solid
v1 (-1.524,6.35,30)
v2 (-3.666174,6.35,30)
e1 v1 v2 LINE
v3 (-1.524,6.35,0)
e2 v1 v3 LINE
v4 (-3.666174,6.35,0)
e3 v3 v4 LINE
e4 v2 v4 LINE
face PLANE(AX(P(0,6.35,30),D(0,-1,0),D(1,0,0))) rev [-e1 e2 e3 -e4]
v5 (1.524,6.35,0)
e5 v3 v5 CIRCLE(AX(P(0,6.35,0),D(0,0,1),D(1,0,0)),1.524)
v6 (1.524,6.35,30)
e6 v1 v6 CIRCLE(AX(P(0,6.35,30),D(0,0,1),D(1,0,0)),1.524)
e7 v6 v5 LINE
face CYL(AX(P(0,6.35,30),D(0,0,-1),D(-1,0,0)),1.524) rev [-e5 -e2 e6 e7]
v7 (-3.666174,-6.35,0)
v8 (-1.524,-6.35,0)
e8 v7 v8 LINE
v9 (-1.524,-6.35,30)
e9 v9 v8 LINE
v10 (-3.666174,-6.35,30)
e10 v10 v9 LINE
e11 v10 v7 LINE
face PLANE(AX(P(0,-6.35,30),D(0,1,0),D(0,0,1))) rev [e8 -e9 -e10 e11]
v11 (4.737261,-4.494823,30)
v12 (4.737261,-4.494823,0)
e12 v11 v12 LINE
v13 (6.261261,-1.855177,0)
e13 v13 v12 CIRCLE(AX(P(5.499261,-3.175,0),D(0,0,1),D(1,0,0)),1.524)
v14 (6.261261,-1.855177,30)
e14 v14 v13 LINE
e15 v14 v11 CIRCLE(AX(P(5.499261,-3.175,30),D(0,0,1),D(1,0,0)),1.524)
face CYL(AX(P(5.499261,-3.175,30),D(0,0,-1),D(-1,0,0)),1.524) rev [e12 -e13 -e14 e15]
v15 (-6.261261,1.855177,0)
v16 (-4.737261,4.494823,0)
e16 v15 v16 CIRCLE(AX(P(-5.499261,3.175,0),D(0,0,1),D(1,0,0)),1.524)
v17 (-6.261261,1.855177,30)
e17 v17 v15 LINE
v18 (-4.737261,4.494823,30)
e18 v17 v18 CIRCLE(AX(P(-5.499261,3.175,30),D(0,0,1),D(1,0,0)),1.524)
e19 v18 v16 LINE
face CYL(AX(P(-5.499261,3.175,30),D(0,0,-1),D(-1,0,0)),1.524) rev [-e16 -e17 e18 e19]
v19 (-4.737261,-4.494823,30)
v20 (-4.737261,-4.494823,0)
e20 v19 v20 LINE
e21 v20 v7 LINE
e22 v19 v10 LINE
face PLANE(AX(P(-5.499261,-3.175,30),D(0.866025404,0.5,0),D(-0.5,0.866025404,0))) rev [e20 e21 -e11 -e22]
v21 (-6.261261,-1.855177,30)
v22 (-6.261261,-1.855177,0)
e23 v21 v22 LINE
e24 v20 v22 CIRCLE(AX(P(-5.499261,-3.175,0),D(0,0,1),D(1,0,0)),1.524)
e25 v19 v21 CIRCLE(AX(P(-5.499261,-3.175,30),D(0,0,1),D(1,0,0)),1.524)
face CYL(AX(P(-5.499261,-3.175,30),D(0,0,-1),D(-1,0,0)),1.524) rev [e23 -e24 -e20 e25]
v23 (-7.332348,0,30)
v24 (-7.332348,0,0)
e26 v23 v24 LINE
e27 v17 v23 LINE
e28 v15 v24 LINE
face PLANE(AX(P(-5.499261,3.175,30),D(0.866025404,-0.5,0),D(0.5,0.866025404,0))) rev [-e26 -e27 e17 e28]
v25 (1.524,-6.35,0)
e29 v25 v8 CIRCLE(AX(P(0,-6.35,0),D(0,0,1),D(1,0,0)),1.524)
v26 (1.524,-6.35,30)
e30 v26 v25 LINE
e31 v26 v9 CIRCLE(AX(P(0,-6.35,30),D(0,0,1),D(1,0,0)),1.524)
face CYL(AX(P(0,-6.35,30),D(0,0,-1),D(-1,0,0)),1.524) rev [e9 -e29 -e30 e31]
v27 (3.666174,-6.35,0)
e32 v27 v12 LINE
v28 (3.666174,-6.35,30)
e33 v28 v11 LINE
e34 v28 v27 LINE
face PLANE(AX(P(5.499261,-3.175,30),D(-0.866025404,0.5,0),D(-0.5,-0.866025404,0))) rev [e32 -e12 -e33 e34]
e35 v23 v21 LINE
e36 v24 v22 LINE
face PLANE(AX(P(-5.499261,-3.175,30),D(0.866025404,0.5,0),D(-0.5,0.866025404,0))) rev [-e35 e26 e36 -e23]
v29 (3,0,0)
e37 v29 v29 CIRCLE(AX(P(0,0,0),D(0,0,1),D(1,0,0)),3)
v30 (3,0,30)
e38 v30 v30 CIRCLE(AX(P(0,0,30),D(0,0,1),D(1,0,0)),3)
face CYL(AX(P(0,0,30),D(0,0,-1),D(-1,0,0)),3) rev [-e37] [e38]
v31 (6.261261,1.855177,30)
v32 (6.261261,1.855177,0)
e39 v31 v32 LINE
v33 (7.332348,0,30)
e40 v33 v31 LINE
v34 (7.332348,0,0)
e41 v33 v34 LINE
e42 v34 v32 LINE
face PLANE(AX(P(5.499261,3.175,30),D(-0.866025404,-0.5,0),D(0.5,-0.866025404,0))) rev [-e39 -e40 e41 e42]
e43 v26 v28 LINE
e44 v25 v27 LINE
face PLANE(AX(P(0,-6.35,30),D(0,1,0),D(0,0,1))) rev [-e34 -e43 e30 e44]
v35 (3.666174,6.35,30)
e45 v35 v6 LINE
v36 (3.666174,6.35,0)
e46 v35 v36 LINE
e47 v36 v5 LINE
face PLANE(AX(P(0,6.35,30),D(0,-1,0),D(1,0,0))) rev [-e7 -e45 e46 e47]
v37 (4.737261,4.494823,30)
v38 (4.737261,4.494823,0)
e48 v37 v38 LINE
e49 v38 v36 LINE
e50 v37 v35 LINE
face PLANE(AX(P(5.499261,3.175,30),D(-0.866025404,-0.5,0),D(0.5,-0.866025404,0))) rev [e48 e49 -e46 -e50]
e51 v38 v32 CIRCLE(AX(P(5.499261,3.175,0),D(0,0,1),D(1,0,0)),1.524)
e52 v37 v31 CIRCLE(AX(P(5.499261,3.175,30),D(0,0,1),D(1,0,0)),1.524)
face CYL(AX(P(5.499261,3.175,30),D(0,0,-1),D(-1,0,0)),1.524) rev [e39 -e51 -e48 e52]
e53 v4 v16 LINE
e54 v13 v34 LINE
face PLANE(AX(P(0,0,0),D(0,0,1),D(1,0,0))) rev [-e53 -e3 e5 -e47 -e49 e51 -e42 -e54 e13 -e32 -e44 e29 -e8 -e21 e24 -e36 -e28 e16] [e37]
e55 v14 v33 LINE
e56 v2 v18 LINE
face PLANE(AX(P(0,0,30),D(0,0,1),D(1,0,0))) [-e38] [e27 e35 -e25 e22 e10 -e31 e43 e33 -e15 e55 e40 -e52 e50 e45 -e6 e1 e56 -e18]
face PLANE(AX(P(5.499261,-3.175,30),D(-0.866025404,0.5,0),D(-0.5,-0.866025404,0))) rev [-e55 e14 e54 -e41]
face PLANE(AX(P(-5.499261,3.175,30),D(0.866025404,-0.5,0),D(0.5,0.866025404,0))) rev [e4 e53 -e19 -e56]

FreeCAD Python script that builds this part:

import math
import FreeCAD as App
import Part
import Sketcher
Q = App.Units.Quantity

doc = App.newDocument("Part")
body = doc.addObject("PartDesign::Body", "Body")

# Sketch on XY plane
sketch1 = doc.addObject("Sketcher::SketchObject", "Sketch")
body.addObject(sketch1)
sketch1.AttachmentSupport = (doc.XY_Plane, [""])
sketch1.MapMode = "FlatFace"
sketch1.addGeometry(Part.LineSegment(App.Vector(4.7, 4.5, 0), App.Vector(3.7, 6.3, 0)), False)
sketch1.addGeometry(Part.LineSegment(App.Vector(3.7, 6.3, 0), App.Vector(1.5, 6.3, 0)), False)
sketch1.addGeometry(Part.ArcOfCircle(Part.Circle(App.Vector(0, 6.3, 0), App.Vector(0, 0, 1), 1.5), math.radians(180), math.radians(360)), False)
sketch1.addGeometry(Part.LineSegment(App.Vector(-1.5, 6.3, 0), App.Vector(-3.7, 6.3, 0)), False)
sketch1.addGeometry(Part.LineSegment(App.Vector(-3.7, 6.3, 0), App.Vector(-4.7, 4.5, 0)), False)
sketch1.addGeometry(Part.ArcOfCircle(Part.Circle(App.Vector(-5.5, 3.2, 0), App.Vector(0, 0, 1), 1.5), math.radians(0), math.radians(60)), False)
sketch1.addGeometry(Part.ArcOfCircle(Part.Circle(App.Vector(-5.5, 3.2, 0), App.Vector(0, 0, 1), 1.5), math.radians(-120), math.radians(0)), False)
sketch1.addGeometry(Part.LineSegment(App.Vector(-6.3, 1.9, 0), App.Vector(-7.3, 0, 0)), False)
sketch1.addGeometry(Part.LineSegment(App.Vector(-7.3, 0, 0), App.Vector(-6.3, -1.9, 0)), False)
sketch1.addGeometry(Part.ArcOfCircle(Part.Circle(App.Vector(-5.5, -3.2, 0), App.Vector(0, 0, 1), 1.5), math.radians(0), math.radians(120)), False)
sketch1.addGeometry(Part.ArcOfCircle(Part.Circle(App.Vector(-5.5, -3.2, 0), App.Vector(0, 0, 1), 1.5), math.radians(-60), math.radians(0)), False)
sketch1.addGeometry(Part.LineSegment(App.Vector(-4.7, -4.5, 0), App.Vector(-3.7, -6.3, 0)), False)
sketch1.addGeometry(Part.LineSegment(App.Vector(-3.7, -6.3, 0), App.Vector(-1.5, -6.3, 0)), False)
sketch1.addGeometry(Part.ArcOfCircle(Part.Circle(App.Vector(0, -6.3, 0), App.Vector(0, 0, 1), 1.5), math.radians(0), math.radians(180)), False)
sketch1.addGeometry(Part.LineSegment(App.Vector(1.5, -6.3, 0), App.Vector(3.7, -6.3, 0)), False)
sketch1.addGeometry(Part.LineSegment(App.Vector(3.7, -6.3, 0), App.Vector(4.7, -4.5, 0)), False)
sketch1.addGeometry(Part.ArcOfCircle(Part.Circle(App.Vector(5.5, -3.2, 0), App.Vector(0, 0, 1), 1.5), math.radians(60), math.radians(240)), False)
sketch1.addGeometry(Part.LineSegment(App.Vector(6.3, -1.9, 0), App.Vector(7.3, 0, 0)), False)
sketch1.addGeometry(Part.LineSegment(App.Vector(7.3, 0, 0), App.Vector(6.3, 1.9, 0)), False)
sketch1.addGeometry(Part.ArcOfCircle(Part.Circle(App.Vector(5.5, 3.2, 0), App.Vector(0, 0, 1), 1.5), math.radians(120), math.radians(300)), False)
sketch1.addGeometry(Part.Circle(App.Vector(0, 0, 0), App.Vector(0, 0, 1), 3), False)
sketch1.addConstraint(Sketcher.Constraint("Coincident", 0, 2, 1, 1))
sketch1.addConstraint(Sketcher.Constraint("Coincident", 1, 2, 2, 2))
sketch1.addConstraint(Sketcher.Constraint("Coincident", 2, 1, 3, 1))
sketch1.addConstraint(Sketcher.Constraint("Coincident", 3, 2, 4, 1))
sketch1.addConstraint(Sketcher.Constraint("Coincident", 4, 2, 5, 2))
sketch1.addConstraint(Sketcher.Constraint("Tangent", 5, 1, 6, 2))
sketch1.addConstraint(Sketcher.Constraint("Coincident", 6, 1, 7, 1))
sketch1.addConstraint(Sketcher.Constraint("Coincident", 7, 2, 8, 1))
sketch1.addConstraint(Sketcher.Constraint("Coincident", 8, 2, 9, 2))
sketch1.addConstraint(Sketcher.Constraint("Tangent", 9, 1, 10, 2))
sketch1.addConstraint(Sketcher.Constraint("Coincident", 10, 1, 11, 1))
sketch1.addConstraint(Sketcher.Constraint("Coincident", 11, 2, 12, 1))
sketch1.addConstraint(Sketcher.Constraint("Coincident", 12, 2, 13, 2))
sketch1.addConstraint(Sketcher.Constraint("Coincident", 13, 1, 14, 1))
sketch1.addConstraint(Sketcher.Constraint("Coincident", 14, 2, 15, 1))
sketch1.addConstraint(Sketcher.Constraint("Coincident", 15, 2, 16, 2))
sketch1.addConstraint(Sketcher.Constraint("Coincident", 16, 1, 17, 1))
sketch1.addConstraint(Sketcher.Constraint("Coincident", 17, 2, 18, 1))
sketch1.addConstraint(Sketcher.Constraint("Coincident", 18, 2, 19, 2))
sketch1.addConstraint(Sketcher.Constraint("Coincident", 19, 1, 0, 1))
sketch1.addConstraint(Sketcher.Constraint("Horizontal", 1))
sketch1.addConstraint(Sketcher.Constraint("Horizontal", 3))
sketch1.addConstraint(Sketcher.Constraint("Horizontal", 12))
sketch1.addConstraint(Sketcher.Constraint("Horizontal", 14))
sketch1.addConstraint(Sketcher.Constraint("Coincident", 20, 3, -1, 1))
sketch1.addConstraint(Sketcher.Constraint("Equal", 2, 5))
sketch1.addConstraint(Sketcher.Constraint("Equal", 5, 6))
sketch1.addConstraint(Sketcher.Constraint("Equal", 6, 9))
sketch1.addConstraint(Sketcher.Constraint("Equal", 9, 10))
sketch1.addConstraint(Sketcher.Constraint("Equal", 10, 13))
sketch1.addConstraint(Sketcher.Constraint("Equal", 13, 16))
sketch1.addConstraint(Sketcher.Constraint("Equal", 16, 19))
sketch1.addConstraint(Sketcher.Constraint("Symmetric", 2, 3, 13, 3, -1, 1))
sketch1.addConstraint(Sketcher.Constraint("Symmetric", 5, 3, 16, 3, -1, 1))
sketch1.addConstraint(Sketcher.Constraint("Symmetric", 9, 3, 19, 3, -1, 1))
sketch1.addConstraint(Sketcher.Constraint("Symmetric", 0, 2, 11, 2, -1, 1))
sketch1.addConstraint(Sketcher.Constraint("Symmetric", 3, 2, 14, 2, -1, 1))
sketch1.addConstraint(Sketcher.Constraint("Symmetric", 7, 2, 17, 2, -1, 1))
sketch1.addConstraint(Sketcher.Constraint("Symmetric", 9, 3, 16, 3, -2))
sketch1.addConstraint(Sketcher.Constraint("Symmetric", 1, 2, 2, 1, -2))
sketch1.addConstraint(Sketcher.Constraint("PointOnObject", 7, 2, -1))
sketch1.addConstraint(Sketcher.Constraint("Parallel", 4, 7))
sketch1.addConstraint(Sketcher.Constraint("Parallel", 0, 8))
sketch1.addConstraint(Sketcher.Constraint("Parallel", 8, 11))
sketch1.addConstraint(Sketcher.Constraint("Parallel", 7, 15))
sketch1.addConstraint(Sketcher.Constraint("Parallel", 15, 17))
sketch1.addConstraint(Sketcher.Constraint("Parallel", 11, 18))
sketch1.addConstraint(Sketcher.Constraint("Horizontal", 2, 3, 0, 2))
sketch1.addConstraint(Sketcher.Constraint("Horizontal", 19, 3, 5, 1))
sketch1.addConstraint(Sketcher.Constraint("Horizontal", 16, 3, 9, 1))
sketch1.addConstraint(Sketcher.Constraint("Horizontal", 10, 1, 15, 2))
sketch1.addConstraint(Sketcher.Constraint("Horizontal", 8, 2, 16, 1))
sketch1.addConstraint(Sketcher.Constraint("Equal", 4, 7))
sketch1.addConstraint(Sketcher.Constraint("Diameter", 20, Q("6 mm")))
sketch1.addConstraint(Sketcher.Constraint("Angle", 0, Q("120 deg")))
sketch1.addConstraint(Sketcher.Constraint("Radius", 2, Q("1.524 mm")))
sketch1.addConstraint(Sketcher.Constraint("DistanceY", 13, 3, 2, 3, Q("12.7 mm")))
sketch1.addConstraint(Sketcher.Constraint("DistanceY", 9, 3, 5, 3, Q("6.35 mm")))
sketch1.addConstraint(Sketcher.Constraint("DistanceX", 6, 3, 4, 2, Q("0.762 mm")))
sketch1.addConstraint(Sketcher.Constraint("DistanceX", 1, 2, 1, 1, Q("2.142174 mm")))
pad1 = doc.addObject("PartDesign::Pad", "Pad")
body.addObject(pad1)
pad1.Profile = sketch1
pad1.Length = 30

doc.recompute()
